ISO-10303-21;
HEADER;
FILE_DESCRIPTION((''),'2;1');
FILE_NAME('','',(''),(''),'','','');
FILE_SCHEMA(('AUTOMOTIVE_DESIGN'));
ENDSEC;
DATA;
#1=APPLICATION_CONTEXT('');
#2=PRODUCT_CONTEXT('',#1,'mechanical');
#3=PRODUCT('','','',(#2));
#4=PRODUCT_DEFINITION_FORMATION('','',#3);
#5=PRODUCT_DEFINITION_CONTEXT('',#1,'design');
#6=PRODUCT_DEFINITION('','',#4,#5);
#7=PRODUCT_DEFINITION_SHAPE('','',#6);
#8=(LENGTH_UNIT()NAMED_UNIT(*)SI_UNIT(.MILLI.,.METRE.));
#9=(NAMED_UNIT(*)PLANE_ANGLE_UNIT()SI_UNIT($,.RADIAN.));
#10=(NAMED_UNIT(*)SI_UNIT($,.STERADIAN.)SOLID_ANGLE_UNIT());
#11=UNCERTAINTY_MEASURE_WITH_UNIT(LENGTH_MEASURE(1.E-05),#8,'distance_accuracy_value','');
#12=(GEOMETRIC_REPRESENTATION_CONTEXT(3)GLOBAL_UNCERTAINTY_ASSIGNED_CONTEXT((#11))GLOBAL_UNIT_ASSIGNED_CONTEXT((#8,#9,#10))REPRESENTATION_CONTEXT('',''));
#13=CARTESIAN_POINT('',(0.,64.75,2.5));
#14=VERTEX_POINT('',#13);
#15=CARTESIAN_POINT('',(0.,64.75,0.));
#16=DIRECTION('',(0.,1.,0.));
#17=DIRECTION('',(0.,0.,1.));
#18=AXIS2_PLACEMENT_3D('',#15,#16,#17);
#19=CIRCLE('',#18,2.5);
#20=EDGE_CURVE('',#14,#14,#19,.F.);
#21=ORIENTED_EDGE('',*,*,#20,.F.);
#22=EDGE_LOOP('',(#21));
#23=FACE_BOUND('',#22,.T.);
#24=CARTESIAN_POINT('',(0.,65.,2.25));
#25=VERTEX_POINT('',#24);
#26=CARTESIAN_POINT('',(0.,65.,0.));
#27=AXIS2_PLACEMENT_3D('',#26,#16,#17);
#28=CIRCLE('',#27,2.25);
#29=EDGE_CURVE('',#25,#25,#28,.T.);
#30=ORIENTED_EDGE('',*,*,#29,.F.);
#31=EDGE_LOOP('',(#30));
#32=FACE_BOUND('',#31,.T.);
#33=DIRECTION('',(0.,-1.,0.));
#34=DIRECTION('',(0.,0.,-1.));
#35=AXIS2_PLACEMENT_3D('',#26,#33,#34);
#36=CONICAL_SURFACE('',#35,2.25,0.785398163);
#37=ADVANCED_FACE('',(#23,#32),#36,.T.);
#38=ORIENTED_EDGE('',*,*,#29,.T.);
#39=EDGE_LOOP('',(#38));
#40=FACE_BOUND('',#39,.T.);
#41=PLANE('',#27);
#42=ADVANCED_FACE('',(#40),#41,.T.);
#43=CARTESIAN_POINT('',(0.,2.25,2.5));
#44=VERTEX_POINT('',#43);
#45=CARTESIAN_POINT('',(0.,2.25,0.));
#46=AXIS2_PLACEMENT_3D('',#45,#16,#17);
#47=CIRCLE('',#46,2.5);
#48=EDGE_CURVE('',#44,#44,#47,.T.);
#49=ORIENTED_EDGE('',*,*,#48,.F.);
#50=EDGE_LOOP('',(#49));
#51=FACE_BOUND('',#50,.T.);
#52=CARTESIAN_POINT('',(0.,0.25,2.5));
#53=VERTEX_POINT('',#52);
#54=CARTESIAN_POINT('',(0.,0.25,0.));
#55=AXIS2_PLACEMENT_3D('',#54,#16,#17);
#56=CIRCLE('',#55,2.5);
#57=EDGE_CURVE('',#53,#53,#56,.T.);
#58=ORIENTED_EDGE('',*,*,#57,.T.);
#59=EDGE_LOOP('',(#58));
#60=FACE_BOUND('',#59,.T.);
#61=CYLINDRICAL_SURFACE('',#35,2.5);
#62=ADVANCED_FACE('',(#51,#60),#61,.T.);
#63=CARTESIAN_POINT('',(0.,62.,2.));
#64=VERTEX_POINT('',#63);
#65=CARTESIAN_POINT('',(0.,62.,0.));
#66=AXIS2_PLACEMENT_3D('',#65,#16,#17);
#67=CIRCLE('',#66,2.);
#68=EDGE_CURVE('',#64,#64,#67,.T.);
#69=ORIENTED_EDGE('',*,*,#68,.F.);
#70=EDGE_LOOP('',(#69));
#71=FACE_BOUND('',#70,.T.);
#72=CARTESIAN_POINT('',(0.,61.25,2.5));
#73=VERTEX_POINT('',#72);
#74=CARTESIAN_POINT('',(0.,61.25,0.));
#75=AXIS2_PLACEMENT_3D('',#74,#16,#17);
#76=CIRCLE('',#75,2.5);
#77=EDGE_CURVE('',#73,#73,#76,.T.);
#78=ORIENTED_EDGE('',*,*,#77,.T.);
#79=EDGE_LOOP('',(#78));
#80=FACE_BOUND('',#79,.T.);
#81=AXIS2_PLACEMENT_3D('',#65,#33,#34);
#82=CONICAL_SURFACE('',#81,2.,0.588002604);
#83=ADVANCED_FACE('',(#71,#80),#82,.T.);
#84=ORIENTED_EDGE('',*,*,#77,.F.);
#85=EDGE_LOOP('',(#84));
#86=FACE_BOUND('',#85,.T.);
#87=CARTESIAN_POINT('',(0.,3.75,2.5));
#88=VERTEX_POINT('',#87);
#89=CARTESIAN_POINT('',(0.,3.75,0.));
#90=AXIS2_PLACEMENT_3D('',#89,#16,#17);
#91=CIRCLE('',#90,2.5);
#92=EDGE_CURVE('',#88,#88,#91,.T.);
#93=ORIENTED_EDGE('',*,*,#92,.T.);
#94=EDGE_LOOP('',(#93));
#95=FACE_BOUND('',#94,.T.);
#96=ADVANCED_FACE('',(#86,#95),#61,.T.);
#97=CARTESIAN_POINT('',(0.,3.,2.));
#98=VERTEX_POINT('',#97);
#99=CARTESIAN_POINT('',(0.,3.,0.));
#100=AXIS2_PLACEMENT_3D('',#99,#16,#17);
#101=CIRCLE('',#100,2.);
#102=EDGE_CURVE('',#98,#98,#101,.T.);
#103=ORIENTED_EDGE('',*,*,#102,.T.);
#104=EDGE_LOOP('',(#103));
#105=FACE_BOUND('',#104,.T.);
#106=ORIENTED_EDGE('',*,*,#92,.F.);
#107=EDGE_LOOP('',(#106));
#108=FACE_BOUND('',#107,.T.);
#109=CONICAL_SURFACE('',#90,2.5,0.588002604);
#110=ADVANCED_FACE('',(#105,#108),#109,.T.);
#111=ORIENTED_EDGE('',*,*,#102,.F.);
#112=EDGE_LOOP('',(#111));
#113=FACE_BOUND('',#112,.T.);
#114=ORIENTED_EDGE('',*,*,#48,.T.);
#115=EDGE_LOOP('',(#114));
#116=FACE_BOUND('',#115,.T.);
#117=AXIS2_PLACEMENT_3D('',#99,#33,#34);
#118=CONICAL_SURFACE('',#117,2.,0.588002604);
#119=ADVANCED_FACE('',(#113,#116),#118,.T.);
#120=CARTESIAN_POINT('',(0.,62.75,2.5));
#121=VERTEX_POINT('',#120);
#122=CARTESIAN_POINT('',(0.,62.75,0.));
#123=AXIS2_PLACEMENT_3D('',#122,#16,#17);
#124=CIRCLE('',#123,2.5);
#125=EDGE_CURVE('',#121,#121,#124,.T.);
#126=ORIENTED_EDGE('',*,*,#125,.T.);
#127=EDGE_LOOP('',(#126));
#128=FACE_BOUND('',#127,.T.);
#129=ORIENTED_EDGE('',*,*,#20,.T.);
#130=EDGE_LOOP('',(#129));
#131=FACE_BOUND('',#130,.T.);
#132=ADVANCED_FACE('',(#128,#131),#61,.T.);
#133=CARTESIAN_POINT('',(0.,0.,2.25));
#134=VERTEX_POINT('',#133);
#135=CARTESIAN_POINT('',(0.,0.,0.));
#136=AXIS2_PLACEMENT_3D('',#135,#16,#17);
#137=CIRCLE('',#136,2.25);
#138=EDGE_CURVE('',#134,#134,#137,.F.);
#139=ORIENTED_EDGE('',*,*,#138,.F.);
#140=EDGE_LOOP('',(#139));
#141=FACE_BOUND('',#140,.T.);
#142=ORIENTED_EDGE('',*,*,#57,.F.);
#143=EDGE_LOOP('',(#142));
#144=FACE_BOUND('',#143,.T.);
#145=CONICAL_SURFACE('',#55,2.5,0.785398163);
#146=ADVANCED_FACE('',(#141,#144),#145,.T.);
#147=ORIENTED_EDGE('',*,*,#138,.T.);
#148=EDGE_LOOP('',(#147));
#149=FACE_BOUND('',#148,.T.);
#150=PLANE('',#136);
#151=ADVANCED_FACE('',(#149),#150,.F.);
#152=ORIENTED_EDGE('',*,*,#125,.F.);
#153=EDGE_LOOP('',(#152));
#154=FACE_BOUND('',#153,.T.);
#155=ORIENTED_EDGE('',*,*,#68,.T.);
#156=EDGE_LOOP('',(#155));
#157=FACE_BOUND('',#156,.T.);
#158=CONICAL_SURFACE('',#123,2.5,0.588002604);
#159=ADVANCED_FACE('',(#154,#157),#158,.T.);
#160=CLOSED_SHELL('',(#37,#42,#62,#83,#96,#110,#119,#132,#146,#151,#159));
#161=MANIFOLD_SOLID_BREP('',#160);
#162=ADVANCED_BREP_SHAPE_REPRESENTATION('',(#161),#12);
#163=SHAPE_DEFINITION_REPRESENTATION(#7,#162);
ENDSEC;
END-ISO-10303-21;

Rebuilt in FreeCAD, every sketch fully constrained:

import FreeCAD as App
import Part
import Sketcher


def edges_at(feature, points):
    """Names of the edges that pass closest to the given points."""
    edges = feature.Shape.Edges
    near = lambda p: min(range(len(edges)), key=lambda i: edges[i].distToShape(Part.Vertex(*p))[0])
    return sorted({f"Edge{near(p) + 1}" for p in points})

doc = App.newDocument("Part")
params = doc.addObject("Spreadsheet::Sheet", "Params")
for row, (alias, value) in enumerate([
    ("sketch1_diameter", "5 mm"),
    ("pad1_length", "65 mm"),
    ("chamfer_size", "0.25 mm"),
    ("sketch2_height", "1.5 mm"),
    ("groove_angle", "360 deg"),
], start=1):
    params.set(f"A{row}", alias)
    params.set(f"B{row}", "=" + value)
    params.setAlias(f"B{row}", alias)

body = doc.addObject("PartDesign::Body", "Body")

# Sketch on XZ plane
sketch1 = body.newObject("Sketcher::SketchObject", "Sketch")
sketch1.AttachmentSupport = (doc.getObject("XZ_Plane"), [""])
sketch1.MapMode = "FlatFace"
sketch1.addGeometry(Part.Circle(App.Vector(0, 0, 0), App.Vector(0, 0, 1), 2.5), False)
sketch1.addConstraint(Sketcher.Constraint("Coincident", 0, 3, -1, 1))
sketch1.addConstraint(Sketcher.Constraint("Diameter", 0, 5.0))
sketch1.setExpression("Constraints[1]", "Params.sketch1_diameter")
pad1 = body.newObject("PartDesign::Pad", "Pad")
pad1.Profile = sketch1
pad1.setExpression("Length", "Params.pad1_length")
pad1.Reversed = True
doc.recompute()

chamfer = body.newObject("PartDesign::Chamfer", "Chamfer")
chamfer.Base = (pad1, edges_at(pad1, [(-2.5, 0, 0), (-2.5, 65, 0)]))
chamfer.setExpression("Size", "Params.chamfer_size")

# Sketch on XY plane
sketch2 = body.newObject("Sketcher::SketchObject", "Sketch001")
sketch2.AttachmentSupport = (doc.getObject("XY_Plane"), [""])
sketch2.MapMode = "FlatFace"
sketch2.addGeometry(Part.LineSegment(App.Vector(2.5, 62.75, 0), App.Vector(2, 62, 0)), False)
sketch2.addGeometry(Part.LineSegment(App.Vector(2, 62, 0), App.Vector(2.5, 61.25, 0)), False)
sketch2.addGeometry(Part.LineSegment(App.Vector(2.5, 61.25, 0), App.Vector(2.5, 62.75, 0)), False)
sketch2.addGeometry(Part.LineSegment(App.Vector(2.5, 3.75, 0), App.Vector(2, 3, 0)), False)
sketch2.addGeometry(Part.LineSegment(App.Vector(2, 3, 0), App.Vector(2.5, 2.25, 0)), False)
sketch2.addGeometry(Part.LineSegment(App.Vector(2.5, 2.25, 0), App.Vector(2.5, 3.75, 0)), False)
sketch2.addConstraint(Sketcher.Constraint("Coincident", 0, 2, 1, 1))
sketch2.addConstraint(Sketcher.Constraint("Coincident", 1, 2, 2, 1))
sketch2.addConstraint(Sketcher.Constraint("Coincident", 2, 2, 0, 1))
sketch2.addConstraint(Sketcher.Constraint("Coincident", 3, 2, 4, 1))
sketch2.addConstraint(Sketcher.Constraint("Coincident", 4, 2, 5, 1))
sketch2.addConstraint(Sketcher.Constraint("Coincident", 5, 2, 3, 1))
sketch2.addConstraint(Sketcher.Constraint("Vertical", 2))
sketch2.addConstraint(Sketcher.Constraint("Vertical", 5))
sketch2.addConstraint(Sketcher.Constraint("Parallel", 0, 3))
sketch2.addConstraint(Sketcher.Constraint("Parallel", 1, 4))
sketch2.addConstraint(Sketcher.Constraint("Vertical", 0, 2, 3, 2))
sketch2.addConstraint(Sketcher.Constraint("Vertical", 2, 2, 4, 2))
sketch2.addConstraint(Sketcher.Constraint("Equal", 0, 1))
sketch2.addConstraint(Sketcher.Constraint("DistanceY", 2, 1, 2, 2, 1.5))
sketch2.addConstraint(Sketcher.Constraint("DistanceX", -1, 1, 0, 2, 2.0))
sketch2.addConstraint(Sketcher.Constraint("DistanceY", -1, 1, 0, 2, 62.0))
sketch2.addConstraint(Sketcher.Constraint("DistanceY", -1, 1, 3, 2, 3.0))
sketch2.addConstraint(Sketcher.Constraint("DistanceX", -1, 1, 1, 2, 2.5))
sketch2.setExpression("Constraints[13]", "Params.sketch2_height")
groove = body.newObject("PartDesign::Groove", "Groove")
groove.Profile = sketch2
groove.ReferenceAxis = (sketch2, ["V_Axis"])
groove.setExpression("Angle", "Params.groove_angle")

doc.recompute()
